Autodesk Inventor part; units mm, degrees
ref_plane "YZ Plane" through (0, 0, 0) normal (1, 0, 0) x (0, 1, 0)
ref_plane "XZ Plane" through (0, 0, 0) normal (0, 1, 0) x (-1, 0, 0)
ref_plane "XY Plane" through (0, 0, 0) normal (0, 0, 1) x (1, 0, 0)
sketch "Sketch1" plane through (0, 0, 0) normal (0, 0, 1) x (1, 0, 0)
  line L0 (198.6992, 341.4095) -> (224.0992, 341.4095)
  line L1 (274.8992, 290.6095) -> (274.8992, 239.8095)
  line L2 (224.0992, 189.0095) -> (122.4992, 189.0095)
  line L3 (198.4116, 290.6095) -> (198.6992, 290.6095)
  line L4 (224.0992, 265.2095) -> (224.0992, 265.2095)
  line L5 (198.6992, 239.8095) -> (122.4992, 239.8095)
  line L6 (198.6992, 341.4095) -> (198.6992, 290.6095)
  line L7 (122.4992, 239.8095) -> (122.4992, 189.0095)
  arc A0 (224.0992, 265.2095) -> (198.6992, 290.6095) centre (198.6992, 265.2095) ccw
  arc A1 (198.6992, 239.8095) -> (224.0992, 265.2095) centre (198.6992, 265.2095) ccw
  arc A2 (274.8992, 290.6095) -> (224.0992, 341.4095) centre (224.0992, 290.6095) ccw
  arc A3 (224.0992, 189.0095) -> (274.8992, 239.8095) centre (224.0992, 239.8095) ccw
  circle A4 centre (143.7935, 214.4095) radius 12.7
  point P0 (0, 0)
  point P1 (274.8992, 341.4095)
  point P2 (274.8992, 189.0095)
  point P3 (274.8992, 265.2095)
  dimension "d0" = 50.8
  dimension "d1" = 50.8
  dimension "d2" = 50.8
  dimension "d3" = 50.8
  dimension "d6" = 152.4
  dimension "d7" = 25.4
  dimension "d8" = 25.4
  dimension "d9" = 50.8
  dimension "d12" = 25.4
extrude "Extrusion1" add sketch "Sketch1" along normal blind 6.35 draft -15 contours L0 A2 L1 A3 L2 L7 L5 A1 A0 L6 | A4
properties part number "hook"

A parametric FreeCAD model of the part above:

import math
import FreeCAD as App
import Part
import Sketcher
Q = App.Units.Quantity

doc = App.newDocument("Part")
body = doc.addObject("PartDesign::Body", "Body")

# Sketch on XY plane
sketch1 = body.newObject("Sketcher::SketchObject", "Sketch")
sketch1.AttachmentSupport = (doc.getObject("XY_Plane"), [""])
sketch1.MapMode = "FlatFace"
sketch1.addGeometry(Part.LineSegment(App.Vector(224, 341, 0), App.Vector(199, 341, 0)), False)
sketch1.addGeometry(Part.LineSegment(App.Vector(199, 341, 0), App.Vector(199, 291, 0)), False)
sketch1.addGeometry(Part.ArcOfCircle(Part.Circle(App.Vector(199, 265, 0), App.Vector(0, 0, 1), 25), math.radians(-90), math.radians(90)), False)
sketch1.addGeometry(Part.LineSegment(App.Vector(199, 240, 0), App.Vector(122, 240, 0)), False)
sketch1.addGeometry(Part.LineSegment(App.Vector(122, 240, 0), App.Vector(122, 189, 0)), False)
sketch1.addGeometry(Part.LineSegment(App.Vector(122, 189, 0), App.Vector(224, 189, 0)), False)
sketch1.addGeometry(Part.ArcOfCircle(Part.Circle(App.Vector(224, 240, 0), App.Vector(0, 0, 1), 51), math.radians(-90), math.radians(0)), False)
sketch1.addGeometry(Part.LineSegment(App.Vector(275, 240, 0), App.Vector(275, 291, 0)), False)
sketch1.addGeometry(Part.ArcOfCircle(Part.Circle(App.Vector(224, 291, 0), App.Vector(0, 0, 1), 51), math.radians(0), math.radians(90)), False)
sketch1.addConstraint(Sketcher.Constraint("Coincident", 0, 2, 1, 1))
sketch1.addConstraint(Sketcher.Constraint("Coincident", 1, 2, 2, 2))
sketch1.addConstraint(Sketcher.Constraint("Tangent", 2, 1, 3, 1))
sketch1.addConstraint(Sketcher.Constraint("Coincident", 3, 2, 4, 1))
sketch1.addConstraint(Sketcher.Constraint("Coincident", 4, 2, 5, 1))
sketch1.addConstraint(Sketcher.Constraint("Tangent", 5, 2, 6, 1))
sketch1.addConstraint(Sketcher.Constraint("Tangent", 6, 2, 7, 1))
sketch1.addConstraint(Sketcher.Constraint("Tangent", 7, 2, 8, 1))
sketch1.addConstraint(Sketcher.Constraint("Tangent", 8, 2, 0, 1))
sketch1.addConstraint(Sketcher.Constraint("Horizontal", 0))
sketch1.addConstraint(Sketcher.Constraint("Vertical", 1))
sketch1.addConstraint(Sketcher.Constraint("Horizontal", 3))
sketch1.addConstraint(Sketcher.Constraint("Vertical", 4))
sketch1.addConstraint(Sketcher.Constraint("Horizontal", 5))
sketch1.addConstraint(Sketcher.Constraint("Vertical", 7))
sketch1.addConstraint(Sketcher.Constraint("Equal", 6, 8))
sketch1.addConstraint(Sketcher.Constraint("Horizontal", 8, 3, 1, 2))
sketch1.addConstraint(Sketcher.Constraint("Horizontal", 6, 3, 2, 1))
sketch1.addConstraint(Sketcher.Constraint("Vertical", 2, 3, 0, 2))
sketch1.addConstraint(Sketcher.Constraint("Equal", 4, 7))
sketch1.addConstraint(Sketcher.Constraint("Radius", 2, Q("1 in")))
sketch1.addConstraint(Sketcher.Constraint("DistanceX", 0, 2, 0, 1, Q("1 in")))
sketch1.addConstraint(Sketcher.Constraint("DistanceX", 3, 2, 3, 1, Q("3 in")))
sketch1.addConstraint(Sketcher.Constraint("DistanceX", -1, 1, 2, 3, Q("7.8228 in")))
sketch1.addConstraint(Sketcher.Constraint("DistanceY", -1, 1, 2, 3, Q("265.2095 mm")))
pad1 = body.newObject("PartDesign::Pad", "Pad")
pad1.Profile = sketch1
pad1.Length = Q("0.25 in")
pad1.TaperAngle = -15

doc.recompute()
